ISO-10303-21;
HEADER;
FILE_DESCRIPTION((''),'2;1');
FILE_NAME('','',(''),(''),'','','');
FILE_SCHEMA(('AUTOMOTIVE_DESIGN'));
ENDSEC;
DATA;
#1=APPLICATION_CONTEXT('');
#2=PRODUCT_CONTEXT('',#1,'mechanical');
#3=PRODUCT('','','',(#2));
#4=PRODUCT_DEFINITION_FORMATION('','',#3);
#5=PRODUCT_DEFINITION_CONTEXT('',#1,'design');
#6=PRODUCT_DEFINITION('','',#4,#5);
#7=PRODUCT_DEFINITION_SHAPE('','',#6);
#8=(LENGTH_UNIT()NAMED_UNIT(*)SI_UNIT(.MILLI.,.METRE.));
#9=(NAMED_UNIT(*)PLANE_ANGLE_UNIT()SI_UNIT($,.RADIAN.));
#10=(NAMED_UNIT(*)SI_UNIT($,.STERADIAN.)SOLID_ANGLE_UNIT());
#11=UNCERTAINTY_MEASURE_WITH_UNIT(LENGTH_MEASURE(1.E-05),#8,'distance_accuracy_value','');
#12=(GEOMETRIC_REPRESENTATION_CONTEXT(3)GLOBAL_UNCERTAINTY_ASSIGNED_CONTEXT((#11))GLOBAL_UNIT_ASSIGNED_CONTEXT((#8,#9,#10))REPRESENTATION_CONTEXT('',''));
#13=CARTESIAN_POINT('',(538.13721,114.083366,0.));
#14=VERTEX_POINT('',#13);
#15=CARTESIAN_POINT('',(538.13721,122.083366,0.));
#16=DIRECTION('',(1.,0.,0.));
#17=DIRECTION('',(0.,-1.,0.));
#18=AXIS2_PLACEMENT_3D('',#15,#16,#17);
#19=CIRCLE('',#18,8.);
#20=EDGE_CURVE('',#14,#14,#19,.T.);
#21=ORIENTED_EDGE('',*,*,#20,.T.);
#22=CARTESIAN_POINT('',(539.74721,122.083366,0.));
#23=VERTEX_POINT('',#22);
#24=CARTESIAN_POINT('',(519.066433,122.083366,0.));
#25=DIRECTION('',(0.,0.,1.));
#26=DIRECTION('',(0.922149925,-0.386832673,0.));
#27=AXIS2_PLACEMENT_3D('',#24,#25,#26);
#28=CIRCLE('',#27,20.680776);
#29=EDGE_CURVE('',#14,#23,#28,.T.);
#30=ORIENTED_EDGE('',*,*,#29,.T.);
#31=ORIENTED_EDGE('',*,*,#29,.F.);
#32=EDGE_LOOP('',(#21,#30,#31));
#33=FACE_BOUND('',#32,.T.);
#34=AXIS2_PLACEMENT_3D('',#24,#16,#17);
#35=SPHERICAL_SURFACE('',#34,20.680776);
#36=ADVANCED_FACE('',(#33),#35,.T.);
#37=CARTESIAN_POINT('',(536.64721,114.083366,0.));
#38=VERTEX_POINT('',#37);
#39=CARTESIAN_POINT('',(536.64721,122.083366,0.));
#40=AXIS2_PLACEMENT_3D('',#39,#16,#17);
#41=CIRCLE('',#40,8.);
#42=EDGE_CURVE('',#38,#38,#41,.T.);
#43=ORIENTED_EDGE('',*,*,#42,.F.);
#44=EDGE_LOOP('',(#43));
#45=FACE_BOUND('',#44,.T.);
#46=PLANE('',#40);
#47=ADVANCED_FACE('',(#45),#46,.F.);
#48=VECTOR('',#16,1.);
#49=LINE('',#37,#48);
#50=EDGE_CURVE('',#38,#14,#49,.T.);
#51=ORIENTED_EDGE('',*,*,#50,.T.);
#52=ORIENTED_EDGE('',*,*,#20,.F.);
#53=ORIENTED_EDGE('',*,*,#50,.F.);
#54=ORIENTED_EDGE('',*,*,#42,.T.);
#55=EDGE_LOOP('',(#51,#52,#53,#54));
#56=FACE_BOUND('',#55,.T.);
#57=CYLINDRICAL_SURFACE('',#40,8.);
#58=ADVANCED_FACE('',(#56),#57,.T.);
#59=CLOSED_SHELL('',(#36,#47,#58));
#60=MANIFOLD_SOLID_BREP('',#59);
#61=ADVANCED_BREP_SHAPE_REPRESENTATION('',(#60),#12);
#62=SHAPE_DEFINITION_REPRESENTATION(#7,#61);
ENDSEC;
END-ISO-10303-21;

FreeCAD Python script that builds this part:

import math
import FreeCAD as App
import Part
import Sketcher
from FreeCAD import Vector
Q = App.Units.Quantity

doc = App.newDocument("Part")
body = doc.addObject("PartDesign::Body", "Body")

sketch1 = body.newObject("Sketcher::SketchObject", "Sketch")
sketch1.AttachmentSupport = (doc.getObject("XY_Plane"), [""])
sketch1.MapMode = "FlatFace"
sketch1.addGeometry([
    Part.LineSegment(Vector(536.6, 130.1, 0), Vector(536.6, 122.1, 0)),
    Part.LineSegment(Vector(536.6, 122.1, 0), Vector(539.7, 122.1, 0)),
    Part.ArcOfCircle(Part.Circle(Vector(519.1, 122.1, 0), Vector(0, 0, 1), 20.7), math.radians(0), math.radians(23)),
    Part.LineSegment(Vector(538.1, 130.1, 0), Vector(536.6, 130.1, 0)),
], False)
sketch1.addGeometry(Part.LineSegment(Vector(519.1, 122.1, 0), Vector(539.7, 122.1, 0)), True)
sketch1.addConstraint([
    Sketcher.Constraint("Coincident", 0, 2, 1, 1),
    Sketcher.Constraint("Coincident", 1, 2, 2, 1),
    Sketcher.Constraint("Coincident", 2, 2, 3, 1),
    Sketcher.Constraint("Coincident", 3, 2, 0, 1),
    Sketcher.Constraint("Vertical", 0),
    Sketcher.Constraint("Horizontal", 1),
    Sketcher.Constraint("Horizontal", 3),
    Sketcher.Constraint("Horizontal", 4),
    Sketcher.Constraint("Coincident", 4, 1, 2, 3),
    Sketcher.Constraint("Coincident", 4, 2, 1, 2),
    Sketcher.Constraint("DistanceY", 0, 2, 0, 1, Q("8 mm")),
    Sketcher.Constraint("DistanceX", 1, 1, 1, 2, Q("3.1 mm")),
    Sketcher.Constraint("DistanceX", 3, 2, 3, 1, Q("1.49 mm")),
    Sketcher.Constraint("DistanceX", -1, 1, 0, 2, Q("536.64721 mm")),
    Sketcher.Constraint("DistanceY", -1, 1, 2, 3, Q("122.083366 mm")),
])
revolution = body.newObject("PartDesign::Revolution", "Revolution")
revolution.Profile = sketch1
revolution.ReferenceAxis = (sketch1, ["Axis0"])
revolution.Angle = 360

doc.recompute()
